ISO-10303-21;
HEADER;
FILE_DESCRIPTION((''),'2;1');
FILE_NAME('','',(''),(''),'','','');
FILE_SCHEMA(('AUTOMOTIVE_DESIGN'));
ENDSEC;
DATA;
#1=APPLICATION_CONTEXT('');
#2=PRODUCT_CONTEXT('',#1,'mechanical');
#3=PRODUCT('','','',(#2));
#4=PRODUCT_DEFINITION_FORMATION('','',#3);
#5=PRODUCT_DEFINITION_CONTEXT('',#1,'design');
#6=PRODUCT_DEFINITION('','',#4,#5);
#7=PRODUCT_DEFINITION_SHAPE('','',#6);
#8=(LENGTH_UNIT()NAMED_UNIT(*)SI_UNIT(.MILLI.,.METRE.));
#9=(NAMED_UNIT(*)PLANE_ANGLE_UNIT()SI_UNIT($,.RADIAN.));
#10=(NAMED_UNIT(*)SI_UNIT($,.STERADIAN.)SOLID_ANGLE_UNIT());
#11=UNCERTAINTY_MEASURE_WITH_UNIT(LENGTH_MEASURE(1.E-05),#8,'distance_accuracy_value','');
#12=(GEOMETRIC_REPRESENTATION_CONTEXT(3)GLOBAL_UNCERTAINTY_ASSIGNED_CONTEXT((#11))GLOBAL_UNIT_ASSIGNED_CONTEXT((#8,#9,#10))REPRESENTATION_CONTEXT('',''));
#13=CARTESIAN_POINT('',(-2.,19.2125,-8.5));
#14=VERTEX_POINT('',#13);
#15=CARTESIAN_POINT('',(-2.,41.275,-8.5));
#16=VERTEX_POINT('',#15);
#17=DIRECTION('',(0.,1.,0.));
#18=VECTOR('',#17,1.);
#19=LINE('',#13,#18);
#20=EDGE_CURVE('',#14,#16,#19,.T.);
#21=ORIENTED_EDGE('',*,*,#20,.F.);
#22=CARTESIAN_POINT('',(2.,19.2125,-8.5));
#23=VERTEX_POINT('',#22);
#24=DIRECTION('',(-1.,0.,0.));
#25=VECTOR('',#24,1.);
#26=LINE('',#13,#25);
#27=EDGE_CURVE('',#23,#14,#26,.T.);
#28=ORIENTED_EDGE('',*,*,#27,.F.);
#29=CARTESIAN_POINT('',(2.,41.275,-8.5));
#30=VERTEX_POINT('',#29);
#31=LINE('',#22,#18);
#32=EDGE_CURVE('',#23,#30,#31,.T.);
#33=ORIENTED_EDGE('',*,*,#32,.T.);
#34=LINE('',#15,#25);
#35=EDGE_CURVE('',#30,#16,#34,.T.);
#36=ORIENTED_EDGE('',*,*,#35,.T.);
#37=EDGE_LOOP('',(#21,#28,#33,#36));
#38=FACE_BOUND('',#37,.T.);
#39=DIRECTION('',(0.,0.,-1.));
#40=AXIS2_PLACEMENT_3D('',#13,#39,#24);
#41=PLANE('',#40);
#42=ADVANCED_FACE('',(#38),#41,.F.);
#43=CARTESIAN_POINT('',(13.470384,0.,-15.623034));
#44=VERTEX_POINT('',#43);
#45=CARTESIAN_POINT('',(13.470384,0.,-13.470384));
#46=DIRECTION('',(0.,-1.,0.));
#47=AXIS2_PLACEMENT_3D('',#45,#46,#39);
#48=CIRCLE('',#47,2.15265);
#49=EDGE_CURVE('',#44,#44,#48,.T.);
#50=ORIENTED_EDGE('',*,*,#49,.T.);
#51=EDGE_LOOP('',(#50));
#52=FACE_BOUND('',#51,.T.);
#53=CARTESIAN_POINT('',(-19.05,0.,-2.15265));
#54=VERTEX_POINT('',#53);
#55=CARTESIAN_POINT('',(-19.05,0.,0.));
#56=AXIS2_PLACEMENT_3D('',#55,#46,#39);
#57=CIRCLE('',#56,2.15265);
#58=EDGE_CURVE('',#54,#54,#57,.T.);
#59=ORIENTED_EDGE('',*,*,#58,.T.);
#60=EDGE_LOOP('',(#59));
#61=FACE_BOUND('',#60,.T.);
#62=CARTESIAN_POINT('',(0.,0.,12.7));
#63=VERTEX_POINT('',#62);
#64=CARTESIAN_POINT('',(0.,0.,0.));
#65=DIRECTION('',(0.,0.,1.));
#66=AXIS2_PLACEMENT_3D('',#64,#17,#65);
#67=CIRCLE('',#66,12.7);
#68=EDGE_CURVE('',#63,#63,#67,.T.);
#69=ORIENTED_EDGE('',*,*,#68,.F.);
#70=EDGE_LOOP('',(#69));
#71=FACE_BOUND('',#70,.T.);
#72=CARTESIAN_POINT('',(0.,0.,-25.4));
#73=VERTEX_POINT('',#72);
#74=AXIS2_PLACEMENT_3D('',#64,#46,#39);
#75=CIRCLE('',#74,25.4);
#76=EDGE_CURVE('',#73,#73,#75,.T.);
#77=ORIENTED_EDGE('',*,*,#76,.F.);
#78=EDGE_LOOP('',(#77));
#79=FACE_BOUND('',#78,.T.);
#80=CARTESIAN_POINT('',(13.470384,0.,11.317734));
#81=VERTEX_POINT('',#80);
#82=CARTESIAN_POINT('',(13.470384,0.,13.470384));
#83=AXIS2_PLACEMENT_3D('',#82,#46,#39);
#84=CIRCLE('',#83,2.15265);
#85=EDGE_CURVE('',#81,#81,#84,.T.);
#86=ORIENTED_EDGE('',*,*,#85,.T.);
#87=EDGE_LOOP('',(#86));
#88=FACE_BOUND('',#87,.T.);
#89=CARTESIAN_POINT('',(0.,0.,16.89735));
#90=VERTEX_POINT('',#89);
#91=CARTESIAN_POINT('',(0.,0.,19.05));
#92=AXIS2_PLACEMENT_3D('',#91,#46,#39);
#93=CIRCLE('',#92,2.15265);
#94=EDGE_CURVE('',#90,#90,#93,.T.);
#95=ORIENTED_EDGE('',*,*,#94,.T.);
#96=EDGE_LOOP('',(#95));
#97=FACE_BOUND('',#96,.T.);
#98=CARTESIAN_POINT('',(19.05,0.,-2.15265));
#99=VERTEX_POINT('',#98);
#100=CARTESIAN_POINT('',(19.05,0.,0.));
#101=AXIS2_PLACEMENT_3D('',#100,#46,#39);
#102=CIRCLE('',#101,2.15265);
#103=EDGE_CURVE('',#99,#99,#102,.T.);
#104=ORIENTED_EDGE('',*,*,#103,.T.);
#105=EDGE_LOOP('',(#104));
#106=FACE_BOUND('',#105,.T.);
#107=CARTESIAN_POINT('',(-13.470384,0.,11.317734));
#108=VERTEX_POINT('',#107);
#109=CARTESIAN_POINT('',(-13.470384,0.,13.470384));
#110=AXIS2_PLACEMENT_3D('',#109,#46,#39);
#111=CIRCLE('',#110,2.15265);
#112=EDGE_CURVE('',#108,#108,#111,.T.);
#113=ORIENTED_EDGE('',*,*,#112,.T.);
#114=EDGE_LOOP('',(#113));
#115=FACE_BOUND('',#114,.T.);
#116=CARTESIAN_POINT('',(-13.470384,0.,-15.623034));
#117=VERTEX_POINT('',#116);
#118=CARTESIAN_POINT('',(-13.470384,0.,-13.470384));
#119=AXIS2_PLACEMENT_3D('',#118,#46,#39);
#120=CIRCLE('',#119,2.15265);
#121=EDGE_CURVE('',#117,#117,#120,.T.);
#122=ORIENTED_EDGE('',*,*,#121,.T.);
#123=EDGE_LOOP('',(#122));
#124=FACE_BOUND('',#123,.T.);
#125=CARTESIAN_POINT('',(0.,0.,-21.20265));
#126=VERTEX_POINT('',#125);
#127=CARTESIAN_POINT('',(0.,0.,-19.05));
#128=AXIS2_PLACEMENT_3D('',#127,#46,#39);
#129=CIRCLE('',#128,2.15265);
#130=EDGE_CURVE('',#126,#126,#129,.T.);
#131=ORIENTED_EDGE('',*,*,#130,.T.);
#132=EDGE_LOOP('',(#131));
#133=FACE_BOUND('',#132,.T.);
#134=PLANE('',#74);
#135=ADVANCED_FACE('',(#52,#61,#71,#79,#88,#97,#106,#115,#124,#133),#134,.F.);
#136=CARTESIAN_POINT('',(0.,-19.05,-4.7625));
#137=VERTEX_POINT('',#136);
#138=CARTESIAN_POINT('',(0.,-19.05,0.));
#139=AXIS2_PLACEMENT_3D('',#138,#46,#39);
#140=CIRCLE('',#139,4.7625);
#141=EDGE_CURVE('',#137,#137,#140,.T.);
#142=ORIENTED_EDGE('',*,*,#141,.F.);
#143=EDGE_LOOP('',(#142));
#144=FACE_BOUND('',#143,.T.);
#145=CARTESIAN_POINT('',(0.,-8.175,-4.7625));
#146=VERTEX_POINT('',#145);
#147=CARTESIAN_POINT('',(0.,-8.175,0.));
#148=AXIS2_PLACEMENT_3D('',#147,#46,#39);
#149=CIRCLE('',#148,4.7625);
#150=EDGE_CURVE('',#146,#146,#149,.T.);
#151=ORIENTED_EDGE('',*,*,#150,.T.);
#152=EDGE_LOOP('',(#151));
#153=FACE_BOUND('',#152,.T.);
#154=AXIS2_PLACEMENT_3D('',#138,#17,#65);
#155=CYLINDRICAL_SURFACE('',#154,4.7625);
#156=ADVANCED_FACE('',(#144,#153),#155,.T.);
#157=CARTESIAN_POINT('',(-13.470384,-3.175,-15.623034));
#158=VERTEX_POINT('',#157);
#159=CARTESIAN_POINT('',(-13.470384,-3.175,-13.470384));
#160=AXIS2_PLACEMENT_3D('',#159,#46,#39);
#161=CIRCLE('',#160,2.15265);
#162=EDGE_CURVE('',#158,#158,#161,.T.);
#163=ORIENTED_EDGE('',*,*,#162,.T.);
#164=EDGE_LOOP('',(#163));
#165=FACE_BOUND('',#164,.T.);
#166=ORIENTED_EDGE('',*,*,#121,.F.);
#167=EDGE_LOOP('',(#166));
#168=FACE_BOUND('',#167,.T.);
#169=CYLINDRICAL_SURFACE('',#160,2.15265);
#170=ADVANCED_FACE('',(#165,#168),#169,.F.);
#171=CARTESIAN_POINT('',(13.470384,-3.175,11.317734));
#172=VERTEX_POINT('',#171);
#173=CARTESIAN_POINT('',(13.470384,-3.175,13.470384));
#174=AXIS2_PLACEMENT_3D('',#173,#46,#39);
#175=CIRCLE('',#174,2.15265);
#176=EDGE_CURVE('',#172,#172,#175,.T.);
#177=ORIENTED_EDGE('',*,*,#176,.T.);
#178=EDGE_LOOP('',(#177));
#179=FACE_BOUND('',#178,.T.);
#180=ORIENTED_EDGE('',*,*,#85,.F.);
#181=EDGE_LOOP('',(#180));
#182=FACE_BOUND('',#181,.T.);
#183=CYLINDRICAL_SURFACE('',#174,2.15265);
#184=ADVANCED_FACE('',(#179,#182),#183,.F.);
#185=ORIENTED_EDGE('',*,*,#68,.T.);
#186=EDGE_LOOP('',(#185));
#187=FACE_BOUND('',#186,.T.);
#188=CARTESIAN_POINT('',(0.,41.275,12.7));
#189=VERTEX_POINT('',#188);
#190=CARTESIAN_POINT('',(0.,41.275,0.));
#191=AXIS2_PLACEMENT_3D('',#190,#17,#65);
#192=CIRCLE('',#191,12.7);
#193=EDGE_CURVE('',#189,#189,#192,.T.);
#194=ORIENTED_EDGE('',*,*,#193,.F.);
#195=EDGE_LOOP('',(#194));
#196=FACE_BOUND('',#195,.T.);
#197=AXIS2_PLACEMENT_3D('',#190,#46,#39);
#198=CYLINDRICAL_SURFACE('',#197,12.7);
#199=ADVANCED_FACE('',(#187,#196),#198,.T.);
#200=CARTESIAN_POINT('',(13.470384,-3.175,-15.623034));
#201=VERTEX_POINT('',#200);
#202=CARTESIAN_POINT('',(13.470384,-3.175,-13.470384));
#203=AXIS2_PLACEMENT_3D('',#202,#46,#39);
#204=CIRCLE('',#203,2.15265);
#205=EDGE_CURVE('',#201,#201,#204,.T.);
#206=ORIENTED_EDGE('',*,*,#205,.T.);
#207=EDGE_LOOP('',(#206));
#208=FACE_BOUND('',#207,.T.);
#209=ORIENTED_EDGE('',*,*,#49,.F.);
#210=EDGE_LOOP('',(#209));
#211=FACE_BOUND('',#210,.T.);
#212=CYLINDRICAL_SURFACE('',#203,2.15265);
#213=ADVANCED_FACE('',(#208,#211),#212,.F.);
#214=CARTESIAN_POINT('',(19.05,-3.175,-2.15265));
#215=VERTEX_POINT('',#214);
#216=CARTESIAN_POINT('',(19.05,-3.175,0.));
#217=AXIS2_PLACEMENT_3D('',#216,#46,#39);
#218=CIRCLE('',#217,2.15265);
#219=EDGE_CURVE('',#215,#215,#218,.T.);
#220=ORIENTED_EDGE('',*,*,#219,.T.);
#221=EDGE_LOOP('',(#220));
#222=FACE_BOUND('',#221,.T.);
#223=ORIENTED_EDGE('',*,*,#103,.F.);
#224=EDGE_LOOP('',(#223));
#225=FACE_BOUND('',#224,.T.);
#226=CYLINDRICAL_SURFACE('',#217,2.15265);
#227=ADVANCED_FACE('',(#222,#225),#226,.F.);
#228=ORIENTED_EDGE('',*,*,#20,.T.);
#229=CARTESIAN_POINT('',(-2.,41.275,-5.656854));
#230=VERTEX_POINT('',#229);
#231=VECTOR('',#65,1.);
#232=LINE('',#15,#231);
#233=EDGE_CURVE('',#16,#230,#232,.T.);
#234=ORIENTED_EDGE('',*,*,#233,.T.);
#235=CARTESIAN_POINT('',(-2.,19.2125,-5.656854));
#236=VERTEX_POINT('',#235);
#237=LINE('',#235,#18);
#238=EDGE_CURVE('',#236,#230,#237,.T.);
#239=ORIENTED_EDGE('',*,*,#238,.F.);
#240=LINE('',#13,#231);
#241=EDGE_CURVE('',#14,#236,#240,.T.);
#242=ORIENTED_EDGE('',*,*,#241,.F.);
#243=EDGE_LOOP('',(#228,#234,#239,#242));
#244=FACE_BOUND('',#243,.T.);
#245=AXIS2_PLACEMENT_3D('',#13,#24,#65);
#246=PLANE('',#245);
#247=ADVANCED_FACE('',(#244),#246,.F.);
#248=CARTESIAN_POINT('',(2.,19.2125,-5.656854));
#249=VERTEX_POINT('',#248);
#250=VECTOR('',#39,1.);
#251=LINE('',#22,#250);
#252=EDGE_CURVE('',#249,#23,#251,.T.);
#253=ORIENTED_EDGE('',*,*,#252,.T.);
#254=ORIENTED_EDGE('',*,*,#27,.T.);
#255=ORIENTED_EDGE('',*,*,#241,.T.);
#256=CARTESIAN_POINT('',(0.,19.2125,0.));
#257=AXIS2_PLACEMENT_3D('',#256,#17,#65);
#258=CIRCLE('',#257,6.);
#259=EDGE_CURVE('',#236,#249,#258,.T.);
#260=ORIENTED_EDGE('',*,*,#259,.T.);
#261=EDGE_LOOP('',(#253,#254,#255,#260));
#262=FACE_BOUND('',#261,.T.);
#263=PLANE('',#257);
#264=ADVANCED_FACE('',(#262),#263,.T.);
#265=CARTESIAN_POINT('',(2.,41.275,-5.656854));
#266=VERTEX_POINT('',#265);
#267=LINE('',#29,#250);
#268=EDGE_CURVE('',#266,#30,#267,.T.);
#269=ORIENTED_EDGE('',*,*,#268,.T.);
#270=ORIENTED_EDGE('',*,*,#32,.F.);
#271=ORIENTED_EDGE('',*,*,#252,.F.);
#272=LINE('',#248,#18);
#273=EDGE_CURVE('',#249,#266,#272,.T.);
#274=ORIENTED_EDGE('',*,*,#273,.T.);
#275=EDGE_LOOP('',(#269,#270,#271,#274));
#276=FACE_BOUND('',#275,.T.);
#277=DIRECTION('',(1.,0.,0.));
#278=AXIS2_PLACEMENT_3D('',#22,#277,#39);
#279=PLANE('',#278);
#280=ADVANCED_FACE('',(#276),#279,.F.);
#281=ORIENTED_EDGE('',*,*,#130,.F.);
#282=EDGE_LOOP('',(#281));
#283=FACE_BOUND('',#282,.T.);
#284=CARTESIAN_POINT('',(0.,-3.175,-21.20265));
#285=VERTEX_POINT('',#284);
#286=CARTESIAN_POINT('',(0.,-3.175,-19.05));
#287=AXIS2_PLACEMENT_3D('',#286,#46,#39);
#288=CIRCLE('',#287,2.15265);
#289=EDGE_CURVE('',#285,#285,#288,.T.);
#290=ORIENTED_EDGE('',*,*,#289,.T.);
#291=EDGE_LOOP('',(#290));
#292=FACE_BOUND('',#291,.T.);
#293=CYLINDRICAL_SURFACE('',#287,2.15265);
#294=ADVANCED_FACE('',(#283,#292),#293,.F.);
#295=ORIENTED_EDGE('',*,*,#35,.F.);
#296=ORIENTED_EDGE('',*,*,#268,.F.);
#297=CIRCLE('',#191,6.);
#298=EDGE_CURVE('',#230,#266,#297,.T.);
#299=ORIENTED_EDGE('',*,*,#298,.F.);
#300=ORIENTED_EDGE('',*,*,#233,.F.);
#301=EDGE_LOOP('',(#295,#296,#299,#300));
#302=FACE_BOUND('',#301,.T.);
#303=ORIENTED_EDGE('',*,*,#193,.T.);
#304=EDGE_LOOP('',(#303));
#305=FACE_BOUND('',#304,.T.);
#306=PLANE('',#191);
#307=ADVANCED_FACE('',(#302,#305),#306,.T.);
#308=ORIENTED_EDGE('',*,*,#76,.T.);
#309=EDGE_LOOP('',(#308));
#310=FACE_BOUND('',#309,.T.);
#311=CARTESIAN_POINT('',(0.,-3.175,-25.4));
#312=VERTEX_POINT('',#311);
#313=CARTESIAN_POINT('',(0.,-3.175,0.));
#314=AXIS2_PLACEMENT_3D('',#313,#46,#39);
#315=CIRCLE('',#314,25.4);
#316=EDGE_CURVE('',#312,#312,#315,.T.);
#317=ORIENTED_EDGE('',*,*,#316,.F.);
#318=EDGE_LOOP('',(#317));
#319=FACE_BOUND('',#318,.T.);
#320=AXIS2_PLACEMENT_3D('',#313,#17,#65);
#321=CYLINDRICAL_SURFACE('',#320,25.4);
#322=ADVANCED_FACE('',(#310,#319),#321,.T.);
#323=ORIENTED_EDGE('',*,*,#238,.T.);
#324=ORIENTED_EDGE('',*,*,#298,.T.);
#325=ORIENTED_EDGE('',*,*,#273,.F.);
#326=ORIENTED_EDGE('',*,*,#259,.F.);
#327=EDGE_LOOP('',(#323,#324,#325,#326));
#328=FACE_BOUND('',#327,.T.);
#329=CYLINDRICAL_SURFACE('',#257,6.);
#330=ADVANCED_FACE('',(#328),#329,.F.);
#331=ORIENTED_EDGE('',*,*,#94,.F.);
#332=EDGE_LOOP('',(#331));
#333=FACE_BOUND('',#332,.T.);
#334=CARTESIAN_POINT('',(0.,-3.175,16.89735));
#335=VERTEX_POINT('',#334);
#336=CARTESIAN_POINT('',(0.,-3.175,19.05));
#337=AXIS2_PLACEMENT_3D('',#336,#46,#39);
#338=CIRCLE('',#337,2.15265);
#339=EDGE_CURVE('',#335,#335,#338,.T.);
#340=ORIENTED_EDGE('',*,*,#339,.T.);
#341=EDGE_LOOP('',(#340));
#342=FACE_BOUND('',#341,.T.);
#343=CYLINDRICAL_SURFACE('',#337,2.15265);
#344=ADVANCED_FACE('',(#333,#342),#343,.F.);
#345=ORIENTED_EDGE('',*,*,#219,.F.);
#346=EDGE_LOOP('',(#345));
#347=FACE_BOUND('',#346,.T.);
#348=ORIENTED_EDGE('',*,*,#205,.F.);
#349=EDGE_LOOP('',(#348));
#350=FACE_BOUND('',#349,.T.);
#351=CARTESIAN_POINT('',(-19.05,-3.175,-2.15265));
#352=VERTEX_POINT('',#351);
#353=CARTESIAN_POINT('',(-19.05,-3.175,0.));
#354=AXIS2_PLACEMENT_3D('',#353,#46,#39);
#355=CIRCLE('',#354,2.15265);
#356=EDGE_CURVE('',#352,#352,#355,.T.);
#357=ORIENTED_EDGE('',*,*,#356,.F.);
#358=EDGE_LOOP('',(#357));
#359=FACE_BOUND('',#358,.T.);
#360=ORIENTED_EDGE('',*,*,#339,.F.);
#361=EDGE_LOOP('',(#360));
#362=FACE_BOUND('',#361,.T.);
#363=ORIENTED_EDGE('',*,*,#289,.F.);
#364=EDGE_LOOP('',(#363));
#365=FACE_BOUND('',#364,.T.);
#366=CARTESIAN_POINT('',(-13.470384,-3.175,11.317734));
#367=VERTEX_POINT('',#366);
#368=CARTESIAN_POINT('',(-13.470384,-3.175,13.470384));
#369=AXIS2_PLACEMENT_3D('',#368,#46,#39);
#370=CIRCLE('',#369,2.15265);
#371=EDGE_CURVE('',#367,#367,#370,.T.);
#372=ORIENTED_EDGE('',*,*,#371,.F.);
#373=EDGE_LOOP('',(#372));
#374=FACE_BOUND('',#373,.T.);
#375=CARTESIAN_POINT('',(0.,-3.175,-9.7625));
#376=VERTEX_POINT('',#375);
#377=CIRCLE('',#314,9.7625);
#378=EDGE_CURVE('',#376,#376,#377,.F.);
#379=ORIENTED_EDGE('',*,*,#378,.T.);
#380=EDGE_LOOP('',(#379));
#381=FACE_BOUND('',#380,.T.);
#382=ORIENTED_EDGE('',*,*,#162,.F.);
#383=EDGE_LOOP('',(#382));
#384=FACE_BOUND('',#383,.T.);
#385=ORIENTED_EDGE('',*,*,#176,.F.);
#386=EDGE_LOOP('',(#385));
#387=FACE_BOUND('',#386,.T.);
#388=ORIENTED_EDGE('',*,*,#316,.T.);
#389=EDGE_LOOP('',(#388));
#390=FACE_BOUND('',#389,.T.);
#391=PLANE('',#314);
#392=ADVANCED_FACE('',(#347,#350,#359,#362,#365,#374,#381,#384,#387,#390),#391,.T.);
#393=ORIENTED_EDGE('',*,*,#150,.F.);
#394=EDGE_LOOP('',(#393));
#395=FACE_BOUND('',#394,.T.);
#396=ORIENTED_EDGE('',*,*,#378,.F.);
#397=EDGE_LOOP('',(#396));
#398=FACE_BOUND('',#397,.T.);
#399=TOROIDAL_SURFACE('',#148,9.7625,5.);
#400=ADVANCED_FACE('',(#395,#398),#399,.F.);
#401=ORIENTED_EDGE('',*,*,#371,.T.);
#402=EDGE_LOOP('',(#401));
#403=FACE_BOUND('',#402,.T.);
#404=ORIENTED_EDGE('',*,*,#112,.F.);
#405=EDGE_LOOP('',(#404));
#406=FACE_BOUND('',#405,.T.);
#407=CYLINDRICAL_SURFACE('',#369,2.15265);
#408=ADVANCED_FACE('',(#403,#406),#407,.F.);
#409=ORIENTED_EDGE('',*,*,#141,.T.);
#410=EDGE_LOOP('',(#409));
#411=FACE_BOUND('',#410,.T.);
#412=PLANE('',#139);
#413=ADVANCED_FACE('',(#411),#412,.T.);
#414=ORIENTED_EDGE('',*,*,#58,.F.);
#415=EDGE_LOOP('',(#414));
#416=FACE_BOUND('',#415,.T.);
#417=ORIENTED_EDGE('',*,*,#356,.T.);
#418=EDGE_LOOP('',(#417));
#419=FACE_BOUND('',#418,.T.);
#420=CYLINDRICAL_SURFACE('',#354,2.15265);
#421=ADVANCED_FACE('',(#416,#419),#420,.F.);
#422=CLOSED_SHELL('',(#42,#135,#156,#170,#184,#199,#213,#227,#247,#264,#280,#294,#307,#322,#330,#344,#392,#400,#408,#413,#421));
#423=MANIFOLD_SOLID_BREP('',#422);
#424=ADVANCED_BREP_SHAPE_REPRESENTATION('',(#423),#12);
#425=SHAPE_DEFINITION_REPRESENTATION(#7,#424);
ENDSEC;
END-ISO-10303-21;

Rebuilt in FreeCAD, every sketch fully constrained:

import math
import FreeCAD as App
import Part
import Sketcher
Q = App.Units.Quantity


def edges_at(feature, points):
    """Names of the edges that pass closest to the given points."""
    edges = feature.Shape.Edges
    near = lambda p: min(range(len(edges)), key=lambda i: edges[i].distToShape(Part.Vertex(*p))[0])
    return sorted({f"Edge{near(p) + 1}" for p in points})

doc = App.newDocument("Part")
body = doc.addObject("PartDesign::Body", "Body")

# Sketch on XZ plane
sketch1 = doc.addObject("Sketcher::SketchObject", "Sketch")
body.addObject(sketch1)
sketch1.AttachmentSupport = (doc.XZ_Plane, [""])
sketch1.MapMode = "FlatFace"
sketch1.addGeometry(Part.Circle(App.Vector(0, 0, 0), App.Vector(0, 0, 1), 13), False)
sketch1.addConstraint([
    Sketcher.Constraint("Coincident", 0, 3, -1, 1),
    Sketcher.Constraint("Diameter", 0, Q("1 in")),
])
pad1 = doc.addObject("PartDesign::Pad", "Pad")
body.addObject(pad1)
pad1.Profile = sketch1
pad1.Length = Q("1.625 in")
pad1.Reversed = True

# Sketch on XZ plane
sketch2 = doc.addObject("Sketcher::SketchObject", "Sketch001")
body.addObject(sketch2)
sketch2.AttachmentSupport = (doc.XZ_Plane, [""])
sketch2.MapMode = "FlatFace"
sketch2.addGeometry(Part.Circle(App.Vector(0, 0, 0), App.Vector(0, 0, 1), 25), False)
sketch2.addConstraint([
    Sketcher.Constraint("Coincident", 0, 3, -1, 1),
    Sketcher.Constraint("Diameter", 0, Q("2 in")),
])
pad2 = doc.addObject("PartDesign::Pad", "Pad001")
body.addObject(pad2)
pad2.Profile = sketch2
pad2.Length = Q("0.125 in")

# Sketch on XZ plane
sketch3 = doc.addObject("Sketcher::SketchObject", "Sketch002")
body.addObject(sketch3)
sketch3.AttachmentSupport = (doc.XZ_Plane, [""])
sketch3.MapMode = "FlatFace"
sketch3.AttachmentOffset = App.Placement(App.Vector(0, 0, 0.125 * 25.4), App.Rotation())
sketch3.addGeometry([
    Part.Circle(App.Vector(0, -19.1, 0), App.Vector(0, 0, 1), 2.2),  # 0
    Part.Circle(App.Vector(13.5, -13.5, 0), App.Vector(0, 0, 1), 2.2),  # 1
    Part.Circle(App.Vector(19.1, 0, 0), App.Vector(0, 0, 1), 2.2),  # 2
    Part.Circle(App.Vector(13.5, 13.5, 0), App.Vector(0, 0, 1), 2.2),  # 3
    Part.Circle(App.Vector(0, 19.1, 0), App.Vector(0, 0, 1), 2.2),  # 4
    Part.Circle(App.Vector(-13.5, 13.5, 0), App.Vector(0, 0, 1), 2.2),  # 5
    Part.Circle(App.Vector(-19.1, 0, 0), App.Vector(0, 0, 1), 2.2),  # 6
    Part.Circle(App.Vector(-13.5, -13.5, 0), App.Vector(0, 0, 1), 2.2),  # 7
], False)
sketch3.addConstraint([
    Sketcher.Constraint("Equal", 0, 1),
    Sketcher.Constraint("Equal", 1, 2),
    Sketcher.Constraint("Equal", 2, 3),
    Sketcher.Constraint("Equal", 3, 4),
    Sketcher.Constraint("Equal", 4, 5),
    Sketcher.Constraint("Equal", 5, 6),
    Sketcher.Constraint("Equal", 6, 7),
    Sketcher.Constraint("Symmetric", 0, 3, 4, 3, -1, 1),
    Sketcher.Constraint("Symmetric", 1, 3, 5, 3, -1, 1),
    Sketcher.Constraint("Symmetric", 2, 3, 6, 3, -1, 1),
    Sketcher.Constraint("Symmetric", 3, 3, 7, 3, -1, 1),
    Sketcher.Constraint("Symmetric", 3, 3, 5, 3, -2),
    Sketcher.Constraint("PointOnObject", 0, 3, -2),
    Sketcher.Constraint("PointOnObject", 2, 3, -1),
    Sketcher.Constraint("Diameter", 0, Q("0.1695 in")),
    Sketcher.Constraint("DistanceY", 0, 3, 4, 3, Q("1.5 in")),
    Sketcher.Constraint("DistanceX", -1, 1, 2, 3, Q("0.75 in")),
    Sketcher.Constraint("DistanceY", 1, 3, 3, 3, Q("26.940768 mm")),
    Sketcher.Constraint("DistanceX", 5, 3, 3, 3, Q("26.940768 mm")),
])
doc.recompute()
hole = doc.addObject("PartDesign::Hole", "Hole")
body.addObject(hole)
hole.Profile = sketch3
hole.ThreadType = "None"
hole.Diameter = Q("0.1695 in")
hole.DepthType = "ThroughAll"

# Sketch on XZ plane
sketch4 = doc.addObject("Sketcher::SketchObject", "Sketch003")
body.addObject(sketch4)
sketch4.AttachmentSupport = (doc.XZ_Plane, [""])
sketch4.MapMode = "FlatFace"
sketch4.AttachmentOffset = App.Placement(App.Vector(0, 0, -1.625 * 25.4), App.Rotation())
sketch4.addGeometry([
    Part.LineSegment(App.Vector(2, -8.5, 0), App.Vector(-2, -8.5, 0)),
    Part.LineSegment(App.Vector(-2, -8.5, 0), App.Vector(-2, -5.7, 0)),
    Part.ArcOfCircle(Part.Circle(App.Vector(0, 0, 0), App.Vector(0, 0, 1), 6), math.radians(-71), math.radians(251)),
    Part.LineSegment(App.Vector(2, -5.7, 0), App.Vector(2, -8.5, 0)),
], False)
sketch4.addConstraint([
    Sketcher.Constraint("Coincident", 0, 2, 1, 1),
    Sketcher.Constraint("Coincident", 1, 2, 2, 2),
    Sketcher.Constraint("Coincident", 2, 1, 3, 1),
    Sketcher.Constraint("Coincident", 3, 2, 0, 1),
    Sketcher.Constraint("Horizontal", 0),
    Sketcher.Constraint("Vertical", 1),
    Sketcher.Constraint("Vertical", 3),
    Sketcher.Constraint("Coincident", 2, 3, -1, 1),
    Sketcher.Constraint("Horizontal", 1, 2, 2, 1),
    Sketcher.Constraint("Radius", 2, Q("6 mm")),
    Sketcher.Constraint("DistanceX", 0, 2, 0, 1, Q("4 mm")),
    Sketcher.Constraint("DistanceY", 0, 2, -1, 1, Q("8.5 mm")),
])
pocket1 = doc.addObject("PartDesign::Pocket", "Pocket")
body.addObject(pocket1)
pocket1.Profile = sketch4
pocket1.Length = 22.0625
pocket1.Reversed = True

# Sketch on XZ plane
sketch5 = doc.addObject("Sketcher::SketchObject", "Sketch004")
body.addObject(sketch5)
sketch5.AttachmentSupport = (doc.XZ_Plane, [""])
sketch5.MapMode = "FlatFace"
sketch5.AttachmentOffset = App.Placement(App.Vector(0, 0, 0.125 * 25.4), App.Rotation())
sketch5.addGeometry(Part.Circle(App.Vector(0, 0, 0), App.Vector(0, 0, 1), 4.8), False)
sketch5.addConstraint([
    Sketcher.Constraint("Coincident", 0, 3, -1, 1),
    Sketcher.Constraint("Diameter", 0, Q("0.375 in")),
])
pad3 = doc.addObject("PartDesign::Pad", "Pad002")
body.addObject(pad3)
pad3.Profile = sketch5
pad3.Length = Q("0.625 in")
doc.recompute()

fillet = doc.addObject("PartDesign::Fillet", "Fillet")
body.addObject(fillet)
fillet.Base = (pad3, edges_at(pad3, [(-4.763, -3.175, 0)]))
fillet.Radius = 5

doc.recompute()
